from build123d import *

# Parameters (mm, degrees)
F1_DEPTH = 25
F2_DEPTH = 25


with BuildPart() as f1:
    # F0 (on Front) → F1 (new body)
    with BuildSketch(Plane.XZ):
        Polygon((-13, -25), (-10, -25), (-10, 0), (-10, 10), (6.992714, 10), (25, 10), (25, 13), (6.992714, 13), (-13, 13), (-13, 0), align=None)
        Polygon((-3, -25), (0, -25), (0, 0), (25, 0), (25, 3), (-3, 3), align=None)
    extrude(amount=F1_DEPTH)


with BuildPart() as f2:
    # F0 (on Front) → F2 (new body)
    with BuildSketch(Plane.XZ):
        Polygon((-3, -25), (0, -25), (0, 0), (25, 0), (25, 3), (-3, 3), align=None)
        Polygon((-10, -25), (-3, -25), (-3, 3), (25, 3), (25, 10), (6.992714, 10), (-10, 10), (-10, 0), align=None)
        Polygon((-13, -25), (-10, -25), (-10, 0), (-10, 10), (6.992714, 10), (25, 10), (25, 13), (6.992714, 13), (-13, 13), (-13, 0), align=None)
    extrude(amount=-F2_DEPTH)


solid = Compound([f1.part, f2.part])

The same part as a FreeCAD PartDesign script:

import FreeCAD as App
import Part
import Sketcher
from FreeCAD import Vector


def add_polygon(sketch, points):
    """Adds a closed chain of lines whose ends are joined by coincident constraints."""
    first, n = sketch.GeometryCount, len(points)
    for a, b in zip(points, points[1:] + points[:1]):
        sketch.addGeometry(Part.LineSegment(App.Vector(*a, 0), App.Vector(*b, 0)), False)
    for i in range(n):
        sketch.addConstraint(Sketcher.Constraint("Coincident", first + i, 2, first + (i + 1) % n, 1))

doc = App.newDocument("Part")
params = doc.addObject("Spreadsheet::Sheet", "Params")
for row, (alias, value) in enumerate([
    ("sketch1_width", "3 mm"),
    ("sketch1_width2", "35 mm"),
    ("sketch1_width3", "25 mm"),
    ("pad1_length", "25 mm"),
    ("sketch2_width", "25 mm"),
    ("sketch2_width2", "38 mm"),
    ("pad2_length", "25 mm"),
], start=1):
    params.set(f"A{row}", alias)
    params.set(f"B{row}", "=" + value)
    params.setAlias(f"B{row}", alias)

body = doc.addObject("PartDesign::Body", "Body")
body.AllowCompound = True

sketch1 = body.newObject("Sketcher::SketchObject", "Sketch")
sketch1.AttachmentSupport = (doc.getObject("XZ_Plane"), [""])
sketch1.MapMode = "FlatFace"
add_polygon(sketch1, [(-13, -25), (-10, -25), (-10, 10), (25, 10), (25, 13), (-13, 13)])
add_polygon(sketch1, [(-3, -25), (0, -25), (0, 0), (25, 0), (25, 3), (-3, 3)])
sketch1.addConstraint(Sketcher.Constraint("Horizontal", 0))
sketch1.addConstraint(Sketcher.Constraint("Vertical", 1))
sketch1.addConstraint(Sketcher.Constraint("Horizontal", 2))
sketch1.addConstraint(Sketcher.Constraint("Vertical", 3))
sketch1.addConstraint(Sketcher.Constraint("Horizontal", 4))
sketch1.addConstraint(Sketcher.Constraint("Vertical", 5))
sketch1.addConstraint(Sketcher.Constraint("Horizontal", 6))
sketch1.addConstraint(Sketcher.Constraint("Vertical", 7))
sketch1.addConstraint(Sketcher.Constraint("Horizontal", 8))
sketch1.addConstraint(Sketcher.Constraint("Vertical", 9))
sketch1.addConstraint(Sketcher.Constraint("Horizontal", 10))
sketch1.addConstraint(Sketcher.Constraint("Vertical", 11))
sketch1.addConstraint(Sketcher.Constraint("Coincident", 7, 2, -1, 1))
sketch1.addConstraint(Sketcher.Constraint("Horizontal", 5, 2, 6, 2))
sketch1.addConstraint(Sketcher.Constraint("Vertical", 3, 2, 8, 2))
sketch1.addConstraint(Sketcher.Constraint("Equal", 0, 6))
sketch1.addConstraint(Sketcher.Constraint("Equal", 2, 1))
sketch1.addConstraint(Sketcher.Constraint("Equal", 6, 3))
sketch1.addConstraint(Sketcher.Constraint("Equal", 8, 7))
sketch1.addConstraint(Sketcher.Constraint("Equal", 3, 9))
sketch1.addConstraint(Sketcher.Constraint("DistanceX", 0, 1, 0, 2, 3.0))
sketch1.addConstraint(Sketcher.Constraint("DistanceX", 2, 1, 2, 2, 35.0))
sketch1.addConstraint(Sketcher.Constraint("DistanceX", 8, 1, 8, 2, 25.0))
sketch1.setExpression("Constraints[32]", "Params.sketch1_width")
sketch1.setExpression("Constraints[33]", "Params.sketch1_width2")
sketch1.setExpression("Constraints[34]", "Params.sketch1_width3")
pad1 = body.newObject("PartDesign::Pad", "Pad")
pad1.Profile = sketch1
pad1.setExpression("Length", "Params.pad1_length")
body2 = doc.addObject("PartDesign::Body", "Body001")

sketch2 = body2.newObject("Sketcher::SketchObject", "Sketch001")
sketch2.AttachmentSupport = (doc.getObject("XZ_Plane001"), [""])
sketch2.MapMode = "FlatFace"
add_polygon(sketch2, [(0, -25), (0, 0), (25, 0), (25, 13), (-13, 13), (-13, -25)])
sketch2.addConstraint(Sketcher.Constraint("Vertical", 0))
sketch2.addConstraint(Sketcher.Constraint("Horizontal", 1))
sketch2.addConstraint(Sketcher.Constraint("Vertical", 2))
sketch2.addConstraint(Sketcher.Constraint("Horizontal", 3))
sketch2.addConstraint(Sketcher.Constraint("Vertical", 4))
sketch2.addConstraint(Sketcher.Constraint("Horizontal", 5))
sketch2.addConstraint(Sketcher.Constraint("Coincident", 0, 2, -1, 1))
sketch2.addConstraint(Sketcher.Constraint("Equal", 1, 0))
sketch2.addConstraint(Sketcher.Constraint("Equal", 5, 2))
sketch2.addConstraint(Sketcher.Constraint("DistanceX", 1, 1, 1, 2, 25.0))
sketch2.addConstraint(Sketcher.Constraint("DistanceX", 3, 2, 3, 1, 38.0))
sketch2.setExpression("Constraints[15]", "Params.sketch2_width")
sketch2.setExpression("Constraints[16]", "Params.sketch2_width2")
pad2 = body2.newObject("PartDesign::Pad", "Pad001")
pad2.Profile = sketch2
pad2.setExpression("Length", "Params.pad2_length")
pad2.Reversed = True

doc.recompute()
